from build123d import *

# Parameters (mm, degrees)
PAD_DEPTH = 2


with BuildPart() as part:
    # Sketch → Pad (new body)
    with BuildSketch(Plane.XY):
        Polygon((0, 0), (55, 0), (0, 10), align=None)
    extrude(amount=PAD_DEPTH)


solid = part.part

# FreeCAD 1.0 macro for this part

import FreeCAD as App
import Part
import Sketcher
Q = App.Units.Quantity

doc = App.newDocument("Part")
body = doc.addObject("PartDesign::Body", "Body")

# Sketch on XY plane
sketch1 = body.newObject("Sketcher::SketchObject", "Sketch")
sketch1.AttachmentSupport = (doc.getObject("XY_Plane"), [""])
sketch1.MapMode = "FlatFace"
sketch1.addGeometry([
    Part.LineSegment(App.Vector(0, 0, 0), App.Vector(55, 0, 0)),
    Part.LineSegment(App.Vector(55, 0, 0), App.Vector(0, 10, 0)),
    Part.LineSegment(App.Vector(0, 10, 0), App.Vector(0, 0, 0)),
], False)
sketch1.addConstraint([
    Sketcher.Constraint("Coincident", 0, 2, 1, 1),
    Sketcher.Constraint("Coincident", 1, 2, 2, 1),
    Sketcher.Constraint("Coincident", 2, 2, 0, 1),
    Sketcher.Constraint("Horizontal", 0),
    Sketcher.Constraint("Vertical", 2),
    Sketcher.Constraint("Coincident", 2, 2, -1, 1),
    Sketcher.Constraint("DistanceX", 0, 1, 0, 2, Q("55 mm")),
    Sketcher.Constraint("DistanceY", 2, 2, 2, 1, Q("10 mm")),
])
pad1 = body.newObject("PartDesign::Pad", "Pad")
pad1.Profile = sketch1
pad1.Length = 2

doc.recompute()
